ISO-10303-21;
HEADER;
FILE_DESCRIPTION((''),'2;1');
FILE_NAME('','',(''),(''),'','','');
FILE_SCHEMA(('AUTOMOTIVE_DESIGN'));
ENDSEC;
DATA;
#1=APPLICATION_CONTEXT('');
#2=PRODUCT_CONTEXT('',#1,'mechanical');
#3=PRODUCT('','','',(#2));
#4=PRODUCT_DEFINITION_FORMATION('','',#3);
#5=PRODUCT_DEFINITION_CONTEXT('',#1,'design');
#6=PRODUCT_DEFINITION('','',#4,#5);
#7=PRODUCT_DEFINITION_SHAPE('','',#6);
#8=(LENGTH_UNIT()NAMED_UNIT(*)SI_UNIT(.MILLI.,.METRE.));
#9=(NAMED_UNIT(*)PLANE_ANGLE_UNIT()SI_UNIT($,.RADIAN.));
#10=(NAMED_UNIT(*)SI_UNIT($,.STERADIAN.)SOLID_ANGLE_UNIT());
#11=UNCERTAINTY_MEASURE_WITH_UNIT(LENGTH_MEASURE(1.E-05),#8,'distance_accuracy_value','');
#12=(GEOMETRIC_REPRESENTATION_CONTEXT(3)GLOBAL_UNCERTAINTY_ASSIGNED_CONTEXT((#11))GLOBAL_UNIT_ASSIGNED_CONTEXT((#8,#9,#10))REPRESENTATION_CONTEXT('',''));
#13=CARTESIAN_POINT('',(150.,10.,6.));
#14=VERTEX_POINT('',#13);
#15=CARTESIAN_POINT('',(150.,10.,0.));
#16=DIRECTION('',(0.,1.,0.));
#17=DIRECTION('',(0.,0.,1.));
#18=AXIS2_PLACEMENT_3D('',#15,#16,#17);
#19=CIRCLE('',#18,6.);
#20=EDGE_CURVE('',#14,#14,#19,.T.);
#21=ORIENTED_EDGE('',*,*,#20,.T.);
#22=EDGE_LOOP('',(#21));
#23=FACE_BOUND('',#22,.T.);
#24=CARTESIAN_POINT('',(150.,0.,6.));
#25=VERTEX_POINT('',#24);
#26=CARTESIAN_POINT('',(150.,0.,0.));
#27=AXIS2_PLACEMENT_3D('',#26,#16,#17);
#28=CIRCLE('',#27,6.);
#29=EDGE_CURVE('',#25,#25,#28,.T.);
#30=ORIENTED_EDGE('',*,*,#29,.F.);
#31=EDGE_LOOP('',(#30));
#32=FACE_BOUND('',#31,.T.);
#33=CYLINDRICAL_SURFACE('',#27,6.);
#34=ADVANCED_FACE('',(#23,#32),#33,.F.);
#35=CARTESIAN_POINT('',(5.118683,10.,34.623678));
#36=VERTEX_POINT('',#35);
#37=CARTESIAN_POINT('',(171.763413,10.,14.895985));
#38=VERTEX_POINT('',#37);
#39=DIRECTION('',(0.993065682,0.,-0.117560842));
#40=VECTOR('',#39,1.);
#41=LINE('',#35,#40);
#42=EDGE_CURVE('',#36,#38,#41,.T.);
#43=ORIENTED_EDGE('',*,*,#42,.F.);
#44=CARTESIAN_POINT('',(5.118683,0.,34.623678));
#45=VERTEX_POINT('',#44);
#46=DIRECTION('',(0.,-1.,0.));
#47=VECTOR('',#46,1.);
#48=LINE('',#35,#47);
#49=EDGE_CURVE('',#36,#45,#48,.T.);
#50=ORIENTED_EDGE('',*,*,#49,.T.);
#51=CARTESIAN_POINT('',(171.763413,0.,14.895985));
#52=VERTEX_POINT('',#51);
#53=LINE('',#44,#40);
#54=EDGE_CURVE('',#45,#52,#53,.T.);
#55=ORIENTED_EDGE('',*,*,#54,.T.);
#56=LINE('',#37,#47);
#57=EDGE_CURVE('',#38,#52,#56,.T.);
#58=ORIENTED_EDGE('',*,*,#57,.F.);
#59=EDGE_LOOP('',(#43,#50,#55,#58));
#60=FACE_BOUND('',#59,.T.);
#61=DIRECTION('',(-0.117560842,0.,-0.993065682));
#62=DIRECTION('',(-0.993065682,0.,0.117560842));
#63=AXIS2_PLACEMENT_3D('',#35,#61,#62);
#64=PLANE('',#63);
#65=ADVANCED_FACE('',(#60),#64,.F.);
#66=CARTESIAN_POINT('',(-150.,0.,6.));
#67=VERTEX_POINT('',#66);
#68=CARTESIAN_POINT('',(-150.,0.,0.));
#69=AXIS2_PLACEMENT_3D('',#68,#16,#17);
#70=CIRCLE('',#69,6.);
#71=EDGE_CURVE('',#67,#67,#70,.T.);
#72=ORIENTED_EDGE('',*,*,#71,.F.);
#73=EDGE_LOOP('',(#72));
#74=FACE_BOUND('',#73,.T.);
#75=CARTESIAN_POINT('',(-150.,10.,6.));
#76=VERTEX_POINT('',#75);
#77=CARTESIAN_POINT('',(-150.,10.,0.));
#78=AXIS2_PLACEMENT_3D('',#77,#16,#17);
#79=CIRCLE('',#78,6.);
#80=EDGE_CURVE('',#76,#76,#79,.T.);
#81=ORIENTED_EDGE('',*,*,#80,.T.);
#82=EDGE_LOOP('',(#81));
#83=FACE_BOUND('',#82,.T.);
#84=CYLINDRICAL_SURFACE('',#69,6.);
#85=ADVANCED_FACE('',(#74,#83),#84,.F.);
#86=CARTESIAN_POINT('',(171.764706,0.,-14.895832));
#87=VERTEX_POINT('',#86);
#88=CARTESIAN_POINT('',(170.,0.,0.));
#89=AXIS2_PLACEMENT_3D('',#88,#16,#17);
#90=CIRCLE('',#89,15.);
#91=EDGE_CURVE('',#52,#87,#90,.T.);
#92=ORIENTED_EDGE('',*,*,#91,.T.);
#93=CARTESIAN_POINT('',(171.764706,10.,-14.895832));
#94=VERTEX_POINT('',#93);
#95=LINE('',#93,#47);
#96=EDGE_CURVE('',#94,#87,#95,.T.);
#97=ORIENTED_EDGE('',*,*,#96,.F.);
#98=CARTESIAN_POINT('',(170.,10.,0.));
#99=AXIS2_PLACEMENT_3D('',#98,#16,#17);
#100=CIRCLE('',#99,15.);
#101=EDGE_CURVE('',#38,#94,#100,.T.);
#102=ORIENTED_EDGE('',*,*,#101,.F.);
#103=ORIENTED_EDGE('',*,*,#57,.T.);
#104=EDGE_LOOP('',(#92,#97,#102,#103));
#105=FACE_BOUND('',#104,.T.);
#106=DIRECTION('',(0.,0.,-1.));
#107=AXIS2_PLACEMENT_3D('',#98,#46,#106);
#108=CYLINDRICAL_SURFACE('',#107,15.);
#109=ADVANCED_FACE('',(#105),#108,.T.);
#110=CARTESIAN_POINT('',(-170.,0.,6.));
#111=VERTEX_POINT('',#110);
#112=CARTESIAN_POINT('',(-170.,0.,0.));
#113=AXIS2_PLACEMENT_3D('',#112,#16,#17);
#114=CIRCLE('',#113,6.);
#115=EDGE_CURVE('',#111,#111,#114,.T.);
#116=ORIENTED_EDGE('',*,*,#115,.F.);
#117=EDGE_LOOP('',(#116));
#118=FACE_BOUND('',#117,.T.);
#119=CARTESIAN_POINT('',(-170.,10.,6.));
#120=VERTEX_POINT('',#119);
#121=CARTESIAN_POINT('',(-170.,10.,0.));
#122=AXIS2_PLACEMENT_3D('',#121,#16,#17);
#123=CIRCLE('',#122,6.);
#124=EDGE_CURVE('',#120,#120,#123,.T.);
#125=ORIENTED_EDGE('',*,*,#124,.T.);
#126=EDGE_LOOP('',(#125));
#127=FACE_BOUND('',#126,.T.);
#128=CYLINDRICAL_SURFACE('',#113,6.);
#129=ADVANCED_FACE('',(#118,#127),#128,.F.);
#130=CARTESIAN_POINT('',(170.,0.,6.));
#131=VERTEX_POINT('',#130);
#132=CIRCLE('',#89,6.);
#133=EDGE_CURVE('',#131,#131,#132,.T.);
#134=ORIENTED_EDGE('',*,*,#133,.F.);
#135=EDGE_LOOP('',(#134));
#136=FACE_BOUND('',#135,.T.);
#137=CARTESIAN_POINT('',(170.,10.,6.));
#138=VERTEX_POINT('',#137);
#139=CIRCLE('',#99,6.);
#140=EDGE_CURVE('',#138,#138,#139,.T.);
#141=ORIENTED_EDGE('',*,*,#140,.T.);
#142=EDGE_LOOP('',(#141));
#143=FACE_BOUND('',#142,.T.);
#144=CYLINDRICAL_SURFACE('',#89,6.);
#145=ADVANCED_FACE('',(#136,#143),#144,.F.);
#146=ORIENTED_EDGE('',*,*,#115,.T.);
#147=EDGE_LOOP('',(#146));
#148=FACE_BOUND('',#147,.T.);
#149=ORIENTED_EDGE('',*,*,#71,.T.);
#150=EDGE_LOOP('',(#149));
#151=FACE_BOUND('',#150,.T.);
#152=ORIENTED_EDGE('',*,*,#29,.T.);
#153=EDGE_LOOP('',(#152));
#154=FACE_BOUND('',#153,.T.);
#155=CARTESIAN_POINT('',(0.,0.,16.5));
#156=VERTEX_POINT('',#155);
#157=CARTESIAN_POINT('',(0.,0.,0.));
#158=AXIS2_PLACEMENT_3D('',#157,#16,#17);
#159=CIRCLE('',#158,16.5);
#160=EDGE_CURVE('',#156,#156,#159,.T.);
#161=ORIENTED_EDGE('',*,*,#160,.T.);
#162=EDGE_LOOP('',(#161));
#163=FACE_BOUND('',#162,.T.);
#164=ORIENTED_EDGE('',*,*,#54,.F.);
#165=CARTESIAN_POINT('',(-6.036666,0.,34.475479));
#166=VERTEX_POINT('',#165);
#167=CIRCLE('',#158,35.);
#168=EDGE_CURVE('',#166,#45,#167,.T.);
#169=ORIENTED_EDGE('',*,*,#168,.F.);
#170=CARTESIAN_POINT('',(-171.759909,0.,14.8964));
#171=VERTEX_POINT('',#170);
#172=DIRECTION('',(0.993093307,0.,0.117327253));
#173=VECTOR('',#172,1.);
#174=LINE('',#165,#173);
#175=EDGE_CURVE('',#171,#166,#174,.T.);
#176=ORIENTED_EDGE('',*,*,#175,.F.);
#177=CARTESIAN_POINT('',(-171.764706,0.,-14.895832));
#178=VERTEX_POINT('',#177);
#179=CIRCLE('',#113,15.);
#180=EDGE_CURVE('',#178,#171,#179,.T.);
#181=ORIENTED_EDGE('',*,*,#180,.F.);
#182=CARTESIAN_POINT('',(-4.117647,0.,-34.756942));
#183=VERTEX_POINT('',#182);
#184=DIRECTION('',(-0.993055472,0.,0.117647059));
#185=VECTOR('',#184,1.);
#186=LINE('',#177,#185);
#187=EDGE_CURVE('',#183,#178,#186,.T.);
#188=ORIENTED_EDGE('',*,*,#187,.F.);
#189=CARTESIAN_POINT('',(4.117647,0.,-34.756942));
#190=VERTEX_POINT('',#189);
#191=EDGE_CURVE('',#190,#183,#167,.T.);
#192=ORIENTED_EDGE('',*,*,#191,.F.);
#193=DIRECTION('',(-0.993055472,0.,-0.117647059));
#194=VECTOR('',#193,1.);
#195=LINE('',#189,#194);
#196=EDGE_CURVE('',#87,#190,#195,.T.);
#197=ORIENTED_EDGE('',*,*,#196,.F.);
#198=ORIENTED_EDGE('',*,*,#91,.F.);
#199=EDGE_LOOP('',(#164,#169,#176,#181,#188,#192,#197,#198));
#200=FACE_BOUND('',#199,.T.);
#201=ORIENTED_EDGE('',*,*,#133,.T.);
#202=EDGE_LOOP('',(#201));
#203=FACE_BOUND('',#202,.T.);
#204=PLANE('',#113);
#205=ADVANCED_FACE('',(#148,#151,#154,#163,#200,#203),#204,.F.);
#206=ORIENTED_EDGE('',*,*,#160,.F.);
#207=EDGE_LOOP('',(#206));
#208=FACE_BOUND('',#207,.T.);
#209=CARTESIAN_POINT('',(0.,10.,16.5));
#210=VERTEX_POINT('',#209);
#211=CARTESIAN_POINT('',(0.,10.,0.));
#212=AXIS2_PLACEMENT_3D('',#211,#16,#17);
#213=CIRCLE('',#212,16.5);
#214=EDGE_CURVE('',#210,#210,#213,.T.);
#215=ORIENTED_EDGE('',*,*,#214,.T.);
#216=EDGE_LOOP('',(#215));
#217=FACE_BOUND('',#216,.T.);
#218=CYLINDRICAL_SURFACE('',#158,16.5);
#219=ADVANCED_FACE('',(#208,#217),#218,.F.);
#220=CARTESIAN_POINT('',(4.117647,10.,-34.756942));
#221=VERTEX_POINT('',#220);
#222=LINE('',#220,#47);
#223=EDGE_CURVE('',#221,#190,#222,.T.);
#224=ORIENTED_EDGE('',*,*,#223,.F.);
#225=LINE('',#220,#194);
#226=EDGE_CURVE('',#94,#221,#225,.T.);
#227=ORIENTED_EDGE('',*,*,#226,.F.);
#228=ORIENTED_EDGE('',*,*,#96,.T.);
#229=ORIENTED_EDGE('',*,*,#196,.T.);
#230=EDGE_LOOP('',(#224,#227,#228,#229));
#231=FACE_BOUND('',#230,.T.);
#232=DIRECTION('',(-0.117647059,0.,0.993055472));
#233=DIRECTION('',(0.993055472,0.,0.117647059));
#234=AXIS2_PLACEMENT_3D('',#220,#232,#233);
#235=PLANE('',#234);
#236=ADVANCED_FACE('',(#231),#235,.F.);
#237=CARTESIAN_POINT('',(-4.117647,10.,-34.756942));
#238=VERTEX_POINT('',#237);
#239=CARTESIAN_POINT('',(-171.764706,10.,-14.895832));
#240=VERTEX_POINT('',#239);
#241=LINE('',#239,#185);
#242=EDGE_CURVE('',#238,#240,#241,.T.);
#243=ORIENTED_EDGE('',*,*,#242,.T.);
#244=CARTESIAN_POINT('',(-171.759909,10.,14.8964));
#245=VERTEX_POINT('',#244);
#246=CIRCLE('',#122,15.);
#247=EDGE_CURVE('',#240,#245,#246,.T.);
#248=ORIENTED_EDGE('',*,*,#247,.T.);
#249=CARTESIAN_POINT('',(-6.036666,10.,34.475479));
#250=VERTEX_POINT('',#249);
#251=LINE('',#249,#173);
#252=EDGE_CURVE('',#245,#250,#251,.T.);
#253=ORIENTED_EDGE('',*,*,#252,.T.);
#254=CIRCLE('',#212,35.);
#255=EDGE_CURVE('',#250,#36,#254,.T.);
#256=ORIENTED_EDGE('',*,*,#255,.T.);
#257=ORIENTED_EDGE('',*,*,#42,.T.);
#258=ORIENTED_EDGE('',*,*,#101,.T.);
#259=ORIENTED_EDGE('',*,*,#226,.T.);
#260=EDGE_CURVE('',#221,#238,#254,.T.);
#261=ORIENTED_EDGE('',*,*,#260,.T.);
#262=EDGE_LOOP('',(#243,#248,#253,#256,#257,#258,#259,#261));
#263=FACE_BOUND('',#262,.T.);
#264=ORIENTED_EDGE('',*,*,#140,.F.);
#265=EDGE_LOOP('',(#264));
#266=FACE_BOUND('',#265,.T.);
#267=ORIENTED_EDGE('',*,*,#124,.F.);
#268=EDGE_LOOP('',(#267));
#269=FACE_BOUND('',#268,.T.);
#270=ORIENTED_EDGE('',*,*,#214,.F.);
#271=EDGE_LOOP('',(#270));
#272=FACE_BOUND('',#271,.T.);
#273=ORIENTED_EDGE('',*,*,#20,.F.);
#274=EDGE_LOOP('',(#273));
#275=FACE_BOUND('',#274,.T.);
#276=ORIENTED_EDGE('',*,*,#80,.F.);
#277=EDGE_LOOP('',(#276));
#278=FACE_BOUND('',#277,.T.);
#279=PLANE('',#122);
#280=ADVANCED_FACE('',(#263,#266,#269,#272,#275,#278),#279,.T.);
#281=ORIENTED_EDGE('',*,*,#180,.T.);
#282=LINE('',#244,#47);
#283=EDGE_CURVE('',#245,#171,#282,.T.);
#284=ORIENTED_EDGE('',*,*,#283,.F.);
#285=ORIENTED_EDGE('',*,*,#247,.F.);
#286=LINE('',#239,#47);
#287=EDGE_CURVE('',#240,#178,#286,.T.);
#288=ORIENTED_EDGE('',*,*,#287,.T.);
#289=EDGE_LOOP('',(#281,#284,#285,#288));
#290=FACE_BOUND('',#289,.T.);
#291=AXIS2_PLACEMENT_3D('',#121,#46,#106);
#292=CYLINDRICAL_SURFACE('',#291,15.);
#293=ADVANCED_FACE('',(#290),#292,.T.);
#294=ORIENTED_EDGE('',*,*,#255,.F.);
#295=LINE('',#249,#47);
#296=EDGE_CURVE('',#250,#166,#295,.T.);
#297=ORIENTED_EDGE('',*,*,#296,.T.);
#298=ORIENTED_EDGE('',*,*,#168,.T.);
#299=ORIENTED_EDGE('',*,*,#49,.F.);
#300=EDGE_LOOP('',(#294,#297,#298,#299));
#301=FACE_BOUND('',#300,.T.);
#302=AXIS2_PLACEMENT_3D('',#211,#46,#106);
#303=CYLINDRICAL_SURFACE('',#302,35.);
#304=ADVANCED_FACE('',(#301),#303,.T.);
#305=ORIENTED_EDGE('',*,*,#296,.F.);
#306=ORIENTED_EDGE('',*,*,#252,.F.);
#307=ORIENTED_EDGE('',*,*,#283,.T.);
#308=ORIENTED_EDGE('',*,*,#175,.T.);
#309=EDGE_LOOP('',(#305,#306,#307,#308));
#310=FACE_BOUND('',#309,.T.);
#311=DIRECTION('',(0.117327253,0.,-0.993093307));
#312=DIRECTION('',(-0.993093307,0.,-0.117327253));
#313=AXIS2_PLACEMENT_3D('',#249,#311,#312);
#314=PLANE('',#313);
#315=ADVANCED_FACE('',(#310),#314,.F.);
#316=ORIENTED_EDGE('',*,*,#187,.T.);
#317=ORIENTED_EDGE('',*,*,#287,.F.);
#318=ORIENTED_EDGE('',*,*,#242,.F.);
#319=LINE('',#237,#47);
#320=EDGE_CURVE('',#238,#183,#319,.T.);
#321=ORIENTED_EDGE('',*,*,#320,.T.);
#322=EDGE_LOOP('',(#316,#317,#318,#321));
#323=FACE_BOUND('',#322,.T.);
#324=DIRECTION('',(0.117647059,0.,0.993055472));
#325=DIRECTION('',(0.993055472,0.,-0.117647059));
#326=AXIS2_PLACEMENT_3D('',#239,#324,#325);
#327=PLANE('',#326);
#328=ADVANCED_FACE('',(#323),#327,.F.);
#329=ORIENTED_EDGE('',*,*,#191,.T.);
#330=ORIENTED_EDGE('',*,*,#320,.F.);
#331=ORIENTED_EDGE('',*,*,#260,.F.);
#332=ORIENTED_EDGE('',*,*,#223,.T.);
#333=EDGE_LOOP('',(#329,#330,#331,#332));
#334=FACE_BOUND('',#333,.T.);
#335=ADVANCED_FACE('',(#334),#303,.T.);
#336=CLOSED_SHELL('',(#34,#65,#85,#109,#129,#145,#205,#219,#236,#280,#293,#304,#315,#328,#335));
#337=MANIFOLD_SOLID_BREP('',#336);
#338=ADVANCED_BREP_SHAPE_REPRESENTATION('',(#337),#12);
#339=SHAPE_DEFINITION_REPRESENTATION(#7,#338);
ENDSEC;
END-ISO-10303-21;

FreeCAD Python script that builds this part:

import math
import FreeCAD as App
import Part
import Sketcher

V = App.Vector
Q = App.Units.Quantity

doc = App.newDocument("Part")
body = doc.addObject("PartDesign::Body", "Body")

# Sketch on XZ plane
sketch1 = body.newObject("Sketcher::SketchObject", "Sketch")
sketch1.AttachmentSupport = (doc.getObject("XZ_Plane"), [""])
sketch1.MapMode = "FlatFace"
sketch1.addGeometry([
    Part.LineSegment(V(-4.117647, -34.756942, 0), V(-171.764706, -14.895832, 0)),  # 0
    Part.ArcOfCircle(Part.Circle(V(-170, 0, 0), V(0, 0, 1), 15), math.radians(96.737876), math.radians(263.243673)),  # 1
    Part.LineSegment(V(-171.759909, 14.8964, 0), V(-6.036666, 34.475479, 0)),  # 2
    Part.ArcOfCircle(Part.Circle(V(0, 0, 0), V(0, 0, 1), 35), math.radians(81.59044), math.radians(99.93182)),  # 3
    Part.LineSegment(V(5.118683, 34.623678, 0), V(171.763413, 14.895985, 0)),  # 4
    Part.ArcOfCircle(Part.Circle(V(170, 0, 0), V(0, 0, 1), 15), math.radians(-83.243673), math.radians(83.248647)),  # 5
    Part.LineSegment(V(171.764706, -14.895832, 0), V(4.117647, -34.756942, 0)),  # 6
    Part.ArcOfCircle(Part.Circle(V(0, 0, 0), V(0, 0, 1), 35), math.radians(-96.756327), math.radians(-83.243673)),  # 7
], False)
sketch1.addConstraint([
    Sketcher.Constraint("Tangent", 0, 2, 1, 2),
    Sketcher.Constraint("Tangent", 1, 1, 2, 1),
    Sketcher.Constraint("Coincident", 2, 2, 3, 2),
    Sketcher.Constraint("Coincident", 3, 1, 4, 1),
    Sketcher.Constraint("Tangent", 4, 2, 5, 2),
    Sketcher.Constraint("Tangent", 5, 1, 6, 1),
    Sketcher.Constraint("Tangent", 6, 2, 7, 2),
    Sketcher.Constraint("Tangent", 7, 1, 0, 1),
    Sketcher.Constraint("Coincident", 3, 3, -1, 1),
    Sketcher.Constraint("Coincident", 7, 3, -1, 1),
    Sketcher.Constraint("Equal", 1, 5),
    Sketcher.Constraint("Equal", 3, 7),
    Sketcher.Constraint("Symmetric", 1, 3, 5, 3, -1, 1),
    Sketcher.Constraint("PointOnObject", 1, 3, -1),
    Sketcher.Constraint("Radius", 1, Q("15 mm")),
    Sketcher.Constraint("Radius", 3, Q("35 mm")),
    Sketcher.Constraint("DistanceX", 1, 3, -1, 1, Q("170 mm")),
    Sketcher.Constraint("DistanceY", 2, 2, 3, 1, Q("0.148199 mm")),
    Sketcher.Constraint("DistanceY", -1, 1, 2, 2, Q("34.475479 mm")),
])
pad1 = body.newObject("PartDesign::Pad", "Pad")
pad1.Profile = sketch1
pad1.Length = 10
pad1.Reversed = True

# Sketch on XZ plane
sketch2 = body.newObject("Sketcher::SketchObject", "Sketch001")
sketch2.AttachmentSupport = (doc.getObject("XZ_Plane"), [""])
sketch2.MapMode = "FlatFace"
sketch2.AttachmentOffset = App.Placement(V(0, 0, -10), App.Rotation())
sketch2.addGeometry([
    Part.Circle(V(170, 0, 0), V(0, 0, 1), 6),
    Part.Circle(V(-170, 0, 0), V(0, 0, 1), 6),
    Part.Circle(V(-150, 0, 0), V(0, 0, 1), 6),
    Part.Circle(V(150, 0, 0), V(0, 0, 1), 6),
], False)
sketch2.addConstraint([
    Sketcher.Constraint("Equal", 0, 1),
    Sketcher.Constraint("Equal", 1, 2),
    Sketcher.Constraint("Equal", 2, 3),
    Sketcher.Constraint("Symmetric", 0, 3, 1, 3, -1, 1),
    Sketcher.Constraint("Symmetric", 2, 3, 3, 3, -1, 1),
    Sketcher.Constraint("PointOnObject", 0, 3, -1),
    Sketcher.Constraint("PointOnObject", 2, 3, -1),
    Sketcher.Constraint("Diameter", 0, Q("12 mm")),
    Sketcher.Constraint("DistanceX", -1, 1, 0, 3, Q("170 mm")),
    Sketcher.Constraint("DistanceX", 2, 3, -1, 1, Q("150 mm")),
])
pocket1 = body.newObject("PartDesign::Pocket", "Pocket")
pocket1.Profile = sketch2
pocket1.Length = 10
pocket1.Reversed = True

# Sketch on XZ plane
sketch3 = body.newObject("Sketcher::SketchObject", "Sketch002")
sketch3.AttachmentSupport = (doc.getObject("XZ_Plane"), [""])
sketch3.MapMode = "FlatFace"
sketch3.AttachmentOffset = App.Placement(V(0, 0, -10), App.Rotation())
sketch3.addGeometry(Part.Circle(V(0, 0, 0), V(0, 0, 1), 16.5), False)
sketch3.addConstraint([
    Sketcher.Constraint("Coincident", 0, 3, -1, 1),
    Sketcher.Constraint("Diameter", 0, Q("33 mm")),
])
pocket2 = body.newObject("PartDesign::Pocket", "Pocket001")
pocket2.Profile = sketch3
pocket2.Length = 10
pocket2.Reversed = True

doc.recompute()
